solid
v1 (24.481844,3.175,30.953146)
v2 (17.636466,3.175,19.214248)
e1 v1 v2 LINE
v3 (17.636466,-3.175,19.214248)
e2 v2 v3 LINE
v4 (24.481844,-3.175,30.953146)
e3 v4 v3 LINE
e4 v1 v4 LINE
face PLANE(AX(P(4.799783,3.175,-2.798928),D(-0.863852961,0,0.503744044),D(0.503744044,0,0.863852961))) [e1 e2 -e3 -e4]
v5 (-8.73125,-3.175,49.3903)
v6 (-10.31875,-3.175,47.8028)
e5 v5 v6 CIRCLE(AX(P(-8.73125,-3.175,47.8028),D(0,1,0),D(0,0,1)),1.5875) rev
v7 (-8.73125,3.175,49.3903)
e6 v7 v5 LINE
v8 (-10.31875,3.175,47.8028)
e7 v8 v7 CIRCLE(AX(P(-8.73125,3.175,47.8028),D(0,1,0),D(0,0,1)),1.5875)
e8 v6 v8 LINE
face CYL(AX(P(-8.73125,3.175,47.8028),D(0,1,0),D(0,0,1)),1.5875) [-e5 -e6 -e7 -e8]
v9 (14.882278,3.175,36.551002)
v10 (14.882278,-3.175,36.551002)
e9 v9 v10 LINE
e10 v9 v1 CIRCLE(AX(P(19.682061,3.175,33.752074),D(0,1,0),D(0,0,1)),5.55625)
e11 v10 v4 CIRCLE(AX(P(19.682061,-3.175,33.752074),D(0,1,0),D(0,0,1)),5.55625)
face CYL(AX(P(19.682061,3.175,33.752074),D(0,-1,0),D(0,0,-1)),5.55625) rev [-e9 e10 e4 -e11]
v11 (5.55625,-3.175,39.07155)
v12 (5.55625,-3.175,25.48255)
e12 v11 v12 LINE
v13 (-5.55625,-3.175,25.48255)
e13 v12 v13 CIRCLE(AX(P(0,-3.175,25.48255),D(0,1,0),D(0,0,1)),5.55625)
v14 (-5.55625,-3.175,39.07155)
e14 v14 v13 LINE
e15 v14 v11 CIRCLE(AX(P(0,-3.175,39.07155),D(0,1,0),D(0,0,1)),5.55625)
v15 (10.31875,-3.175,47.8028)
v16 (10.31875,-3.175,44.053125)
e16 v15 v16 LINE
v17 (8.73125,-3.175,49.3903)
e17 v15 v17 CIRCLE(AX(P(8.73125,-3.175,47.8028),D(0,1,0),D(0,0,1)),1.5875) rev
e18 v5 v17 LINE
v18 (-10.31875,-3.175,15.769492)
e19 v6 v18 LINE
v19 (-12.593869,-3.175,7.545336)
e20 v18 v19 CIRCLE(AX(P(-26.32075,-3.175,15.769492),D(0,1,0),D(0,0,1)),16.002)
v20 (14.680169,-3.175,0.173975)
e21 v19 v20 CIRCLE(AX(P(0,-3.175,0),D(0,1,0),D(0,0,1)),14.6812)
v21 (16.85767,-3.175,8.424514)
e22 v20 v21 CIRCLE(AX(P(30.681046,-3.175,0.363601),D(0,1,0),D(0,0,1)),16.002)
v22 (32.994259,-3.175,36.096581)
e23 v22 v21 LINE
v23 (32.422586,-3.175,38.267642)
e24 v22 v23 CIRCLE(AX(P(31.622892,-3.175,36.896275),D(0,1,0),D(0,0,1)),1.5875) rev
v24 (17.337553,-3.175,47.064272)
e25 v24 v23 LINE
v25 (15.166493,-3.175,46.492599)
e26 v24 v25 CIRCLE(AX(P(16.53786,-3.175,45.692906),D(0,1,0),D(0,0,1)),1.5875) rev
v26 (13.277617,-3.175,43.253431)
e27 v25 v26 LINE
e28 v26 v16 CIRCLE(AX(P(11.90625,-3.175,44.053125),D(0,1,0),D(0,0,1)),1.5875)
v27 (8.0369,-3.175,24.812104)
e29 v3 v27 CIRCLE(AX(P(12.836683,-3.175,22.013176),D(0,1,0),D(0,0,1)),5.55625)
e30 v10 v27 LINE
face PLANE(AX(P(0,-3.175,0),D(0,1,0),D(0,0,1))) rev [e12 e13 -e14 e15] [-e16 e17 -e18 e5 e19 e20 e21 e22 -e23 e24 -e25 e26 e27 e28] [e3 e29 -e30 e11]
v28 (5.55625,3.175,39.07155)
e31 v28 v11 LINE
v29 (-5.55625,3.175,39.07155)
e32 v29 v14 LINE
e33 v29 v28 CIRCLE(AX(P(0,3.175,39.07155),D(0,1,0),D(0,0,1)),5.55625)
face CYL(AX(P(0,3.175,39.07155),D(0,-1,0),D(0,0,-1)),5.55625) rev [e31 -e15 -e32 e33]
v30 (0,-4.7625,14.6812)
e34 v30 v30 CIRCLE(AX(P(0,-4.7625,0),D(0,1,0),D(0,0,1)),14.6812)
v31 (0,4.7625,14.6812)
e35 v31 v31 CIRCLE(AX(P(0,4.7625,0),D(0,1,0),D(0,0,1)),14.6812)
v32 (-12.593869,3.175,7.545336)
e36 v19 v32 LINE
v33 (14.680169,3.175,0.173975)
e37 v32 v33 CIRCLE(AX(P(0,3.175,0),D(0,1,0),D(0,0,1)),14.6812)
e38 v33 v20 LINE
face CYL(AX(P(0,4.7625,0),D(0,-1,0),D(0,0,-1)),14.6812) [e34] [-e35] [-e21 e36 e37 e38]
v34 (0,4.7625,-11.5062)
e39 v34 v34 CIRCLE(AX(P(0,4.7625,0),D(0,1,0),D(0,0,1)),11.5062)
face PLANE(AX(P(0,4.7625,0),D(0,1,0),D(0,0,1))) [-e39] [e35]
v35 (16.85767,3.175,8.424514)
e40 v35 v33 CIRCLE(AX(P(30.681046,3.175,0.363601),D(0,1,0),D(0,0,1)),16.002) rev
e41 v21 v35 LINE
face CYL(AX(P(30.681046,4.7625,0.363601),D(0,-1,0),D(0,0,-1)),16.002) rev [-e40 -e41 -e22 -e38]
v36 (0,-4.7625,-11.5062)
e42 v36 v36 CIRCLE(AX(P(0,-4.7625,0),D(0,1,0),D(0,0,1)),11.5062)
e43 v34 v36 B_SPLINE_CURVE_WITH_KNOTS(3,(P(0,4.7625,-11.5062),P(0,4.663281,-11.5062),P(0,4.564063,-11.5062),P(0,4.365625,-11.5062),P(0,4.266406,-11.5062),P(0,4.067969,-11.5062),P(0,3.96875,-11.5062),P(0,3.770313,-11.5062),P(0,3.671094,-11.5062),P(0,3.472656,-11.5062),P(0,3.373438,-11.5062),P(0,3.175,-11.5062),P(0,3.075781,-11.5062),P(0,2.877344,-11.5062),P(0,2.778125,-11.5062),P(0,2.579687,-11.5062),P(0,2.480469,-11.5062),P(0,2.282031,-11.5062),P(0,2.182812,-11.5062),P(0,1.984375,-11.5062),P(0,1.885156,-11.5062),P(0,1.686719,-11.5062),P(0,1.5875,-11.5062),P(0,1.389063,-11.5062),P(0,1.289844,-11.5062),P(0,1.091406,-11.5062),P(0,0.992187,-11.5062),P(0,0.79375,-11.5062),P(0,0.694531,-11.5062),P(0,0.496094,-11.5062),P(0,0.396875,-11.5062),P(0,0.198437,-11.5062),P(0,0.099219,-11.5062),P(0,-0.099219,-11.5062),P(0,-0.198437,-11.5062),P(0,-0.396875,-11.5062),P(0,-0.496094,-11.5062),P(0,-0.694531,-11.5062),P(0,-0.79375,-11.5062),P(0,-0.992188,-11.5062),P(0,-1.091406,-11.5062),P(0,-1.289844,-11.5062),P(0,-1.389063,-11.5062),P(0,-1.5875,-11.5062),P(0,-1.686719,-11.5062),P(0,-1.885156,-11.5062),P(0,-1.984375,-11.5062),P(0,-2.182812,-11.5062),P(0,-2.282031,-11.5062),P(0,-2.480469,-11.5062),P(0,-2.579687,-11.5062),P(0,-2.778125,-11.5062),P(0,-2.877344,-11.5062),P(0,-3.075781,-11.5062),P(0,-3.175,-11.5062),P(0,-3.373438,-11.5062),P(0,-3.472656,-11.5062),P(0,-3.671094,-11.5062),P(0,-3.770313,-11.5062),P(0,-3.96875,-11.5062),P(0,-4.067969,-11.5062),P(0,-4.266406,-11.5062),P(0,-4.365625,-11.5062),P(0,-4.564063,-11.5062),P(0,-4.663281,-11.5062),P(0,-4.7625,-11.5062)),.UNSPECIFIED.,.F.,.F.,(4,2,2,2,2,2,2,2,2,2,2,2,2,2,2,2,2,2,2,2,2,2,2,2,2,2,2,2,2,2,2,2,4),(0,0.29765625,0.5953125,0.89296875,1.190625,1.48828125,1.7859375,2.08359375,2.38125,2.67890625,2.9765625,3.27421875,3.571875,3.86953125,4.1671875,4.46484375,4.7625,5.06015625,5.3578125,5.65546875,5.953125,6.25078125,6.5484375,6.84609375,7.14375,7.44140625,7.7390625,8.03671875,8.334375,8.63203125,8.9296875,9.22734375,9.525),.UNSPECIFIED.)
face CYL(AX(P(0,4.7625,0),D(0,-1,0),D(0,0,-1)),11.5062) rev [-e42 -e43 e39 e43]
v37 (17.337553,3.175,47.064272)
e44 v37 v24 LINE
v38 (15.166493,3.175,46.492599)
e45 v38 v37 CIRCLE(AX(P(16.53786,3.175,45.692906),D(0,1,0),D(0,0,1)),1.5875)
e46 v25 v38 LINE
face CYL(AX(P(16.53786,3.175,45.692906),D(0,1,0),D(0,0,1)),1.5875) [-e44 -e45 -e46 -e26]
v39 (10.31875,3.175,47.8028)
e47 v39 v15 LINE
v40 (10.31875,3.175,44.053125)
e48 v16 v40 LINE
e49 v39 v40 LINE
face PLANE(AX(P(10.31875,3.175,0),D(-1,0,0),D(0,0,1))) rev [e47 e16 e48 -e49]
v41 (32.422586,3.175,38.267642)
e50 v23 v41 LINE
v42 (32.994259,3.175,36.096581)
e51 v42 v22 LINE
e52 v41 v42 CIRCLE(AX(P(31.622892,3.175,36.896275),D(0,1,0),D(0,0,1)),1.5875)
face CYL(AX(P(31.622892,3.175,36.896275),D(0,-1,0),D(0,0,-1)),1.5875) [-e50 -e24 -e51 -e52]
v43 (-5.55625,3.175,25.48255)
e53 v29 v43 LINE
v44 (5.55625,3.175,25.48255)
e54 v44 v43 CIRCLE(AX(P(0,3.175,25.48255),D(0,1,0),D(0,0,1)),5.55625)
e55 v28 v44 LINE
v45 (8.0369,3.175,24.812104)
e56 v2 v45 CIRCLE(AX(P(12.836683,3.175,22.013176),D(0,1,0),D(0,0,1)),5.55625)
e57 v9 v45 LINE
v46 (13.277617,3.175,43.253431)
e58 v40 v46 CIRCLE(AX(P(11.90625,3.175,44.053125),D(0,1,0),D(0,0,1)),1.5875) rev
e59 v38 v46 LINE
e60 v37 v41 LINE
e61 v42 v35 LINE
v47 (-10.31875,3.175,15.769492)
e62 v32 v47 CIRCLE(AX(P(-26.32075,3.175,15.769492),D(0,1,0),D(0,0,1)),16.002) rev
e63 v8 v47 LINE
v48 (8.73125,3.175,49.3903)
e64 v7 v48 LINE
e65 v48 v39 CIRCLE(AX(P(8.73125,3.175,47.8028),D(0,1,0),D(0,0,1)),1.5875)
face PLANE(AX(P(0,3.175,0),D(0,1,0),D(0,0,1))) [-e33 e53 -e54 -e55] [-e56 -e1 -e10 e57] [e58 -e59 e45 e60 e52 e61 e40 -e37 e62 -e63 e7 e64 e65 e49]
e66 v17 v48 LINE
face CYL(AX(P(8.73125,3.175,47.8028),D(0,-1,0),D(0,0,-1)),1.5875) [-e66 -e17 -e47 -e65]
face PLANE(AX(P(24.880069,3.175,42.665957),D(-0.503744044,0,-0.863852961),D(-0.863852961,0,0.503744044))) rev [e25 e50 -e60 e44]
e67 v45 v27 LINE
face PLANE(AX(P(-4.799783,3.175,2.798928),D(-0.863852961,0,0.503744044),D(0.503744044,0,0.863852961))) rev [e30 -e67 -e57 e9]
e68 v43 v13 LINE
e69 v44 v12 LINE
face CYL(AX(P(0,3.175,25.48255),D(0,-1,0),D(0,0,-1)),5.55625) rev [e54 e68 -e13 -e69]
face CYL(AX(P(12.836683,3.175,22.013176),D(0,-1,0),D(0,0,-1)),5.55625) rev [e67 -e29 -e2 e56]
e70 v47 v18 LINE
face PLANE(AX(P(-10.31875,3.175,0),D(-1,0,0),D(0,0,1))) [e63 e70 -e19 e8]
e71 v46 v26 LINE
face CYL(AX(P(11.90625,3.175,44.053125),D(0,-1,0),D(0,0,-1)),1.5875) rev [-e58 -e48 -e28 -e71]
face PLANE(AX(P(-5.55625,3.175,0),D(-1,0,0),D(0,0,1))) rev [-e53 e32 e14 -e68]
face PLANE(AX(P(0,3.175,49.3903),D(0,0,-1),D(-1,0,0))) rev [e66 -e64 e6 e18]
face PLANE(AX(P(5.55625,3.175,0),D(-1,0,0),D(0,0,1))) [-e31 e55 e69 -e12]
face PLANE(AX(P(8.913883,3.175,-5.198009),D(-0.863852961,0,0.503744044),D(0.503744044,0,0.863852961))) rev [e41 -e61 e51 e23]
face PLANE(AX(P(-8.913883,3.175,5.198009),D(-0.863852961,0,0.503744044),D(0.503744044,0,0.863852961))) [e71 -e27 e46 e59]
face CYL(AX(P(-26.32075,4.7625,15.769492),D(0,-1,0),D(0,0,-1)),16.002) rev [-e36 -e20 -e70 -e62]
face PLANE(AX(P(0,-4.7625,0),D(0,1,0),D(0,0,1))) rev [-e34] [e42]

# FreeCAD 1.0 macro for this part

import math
import FreeCAD as App
import Part
import Sketcher
from FreeCAD import Vector
Q = App.Units.Quantity


def edges_at(feature, points):
    """Names of the edges that pass closest to the given points."""
    edges = feature.Shape.Edges
    near = lambda p: min(range(len(edges)), key=lambda i: edges[i].distToShape(Part.Vertex(*p))[0])
    return sorted({f"Edge{near(p) + 1}" for p in points})

doc = App.newDocument("Part")
body = doc.addObject("PartDesign::Body", "Body")

sketch1 = body.newObject("Sketcher::SketchObject", "Sketch")
sketch1.AttachmentSupport = (doc.getObject("XZ_Plane"), [""])
sketch1.MapMode = "FlatFace"
sketch1.addGeometry([
    Part.Circle(Vector(0, 0, 0), Vector(0, 0, 1), 14.6812),
    Part.Circle(Vector(0, 0, 0), Vector(0, 0, 1), 11.5062),
], False)
sketch1.addConstraint([
    Sketcher.Constraint("Coincident", 0, 3, -1, 1),
    Sketcher.Constraint("Coincident", 1, 3, -1, 1),
    Sketcher.Constraint("Diameter", 0, Q("1.156 in")),
    Sketcher.Constraint("Diameter", 1, Q("0.906 in")),
])
pad1 = body.newObject("PartDesign::Pad", "Pad")
pad1.Profile = sketch1
pad1.Length = Q("0.375 in")
pad1.Midplane = True

sketch2 = body.newObject("Sketcher::SketchObject", "Sketch001")
sketch2.AttachmentSupport = (doc.getObject("XZ_Plane"), [""])
sketch2.MapMode = "FlatFace"
sketch2.addGeometry([
    Part.LineSegment(Vector(-10.31875, 10.443229, 0), Vector(-10.31875, 49.3903, 0)),
    Part.LineSegment(Vector(-10.31875, 49.3903, 0), Vector(10.31875, 49.3903, 0)),
    Part.LineSegment(Vector(10.31875, 49.3903, 0), Vector(10.31875, 38.179375, 0)),
    Part.LineSegment(Vector(10.31875, 38.179375, 0), Vector(15.966187, 47.863966, 0)),
    Part.LineSegment(Vector(15.966187, 47.863966, 0), Vector(33.793952, 37.467948, 0)),
    Part.LineSegment(Vector(33.793952, 37.467948, 0), Vector(14.174597, 3.823405, 0)),
    Part.ArcOfCircle(Part.Circle(Vector(0, 0, 0), Vector(0, 0, 1), 14.6812), math.radians(15.0955), math.radians(134.656486)),
    Part.LineSegment(Vector(5.55625, 25.48255, 0), Vector(5.55625, 39.07155, 0)),
    Part.ArcOfCircle(Part.Circle(Vector(0, 39.07155, 0), Vector(0, 0, 1), 5.55625), math.radians(0), math.radians(180)),
    Part.LineSegment(Vector(-5.55625, 39.07155, 0), Vector(-5.55625, 25.48255, 0)),
    Part.ArcOfCircle(Part.Circle(Vector(0, 25.48255, 0), Vector(0, 0, 1), 5.55625), math.radians(180), math.radians(360)),
    Part.LineSegment(Vector(17.636466, 19.214248, 0), Vector(24.481844, 30.953146, 0)),
    Part.ArcOfCircle(Part.Circle(Vector(19.682061, 33.752074, 0), Vector(0, 0, 1), 5.55625), math.radians(-30.248015), math.radians(149.751985)),
    Part.LineSegment(Vector(14.882278, 36.551002, 0), Vector(8.0369, 24.812104, 0)),
    Part.ArcOfCircle(Part.Circle(Vector(12.836683, 22.013176, 0), Vector(0, 0, 1), 5.55625), math.radians(149.751985), math.radians(329.751985)),
], False)
sketch2.addConstraint([
    Sketcher.Constraint("Coincident", 0, 2, 1, 1),
    Sketcher.Constraint("Coincident", 1, 2, 2, 1),
    Sketcher.Constraint("Coincident", 2, 2, 3, 1),
    Sketcher.Constraint("Coincident", 3, 2, 4, 1),
    Sketcher.Constraint("Coincident", 4, 2, 5, 1),
    Sketcher.Constraint("Coincident", 5, 2, 6, 1),
    Sketcher.Constraint("Coincident", 6, 2, 0, 1),
    Sketcher.Constraint("Tangent", 7, 2, 8, 1),
    Sketcher.Constraint("Tangent", 8, 2, 9, 1),
    Sketcher.Constraint("Tangent", 9, 2, 10, 1),
    Sketcher.Constraint("Tangent", 10, 2, 7, 1),
    Sketcher.Constraint("Tangent", 11, 2, 12, 1),
    Sketcher.Constraint("Tangent", 12, 2, 13, 1),
    Sketcher.Constraint("Tangent", 13, 2, 14, 1),
    Sketcher.Constraint("Tangent", 14, 2, 11, 1),
    Sketcher.Constraint("Vertical", 0),
    Sketcher.Constraint("Horizontal", 1),
    Sketcher.Constraint("Vertical", 2),
    Sketcher.Constraint("Vertical", 7),
    Sketcher.Constraint("Vertical", 9),
    Sketcher.Constraint("Coincident", 6, 3, -1, 1),
    Sketcher.Constraint("Equal", 10, 12),
    Sketcher.Constraint("Equal", 12, 14),
    Sketcher.Constraint("PointOnObject", 8, 3, -2),
    Sketcher.Constraint("Perpendicular", 3, 4),
    Sketcher.Constraint("Perpendicular", 4, 5),
    Sketcher.Constraint("Parallel", 5, 11),
    Sketcher.Constraint("Radius", 6, Q("0.578 in")),
    Sketcher.Constraint("Radius", 8, Q("0.21875 in")),
    Sketcher.Constraint("DistanceX", 1, 1, 1, 2, Q("0.8125 in")),
    Sketcher.Constraint("DistanceY", 7, 1, 7, 2, Q("0.535 in")),
    Sketcher.Constraint("Distance", 4, Q("0.8125 in")),
    Sketcher.Constraint("Distance", 11, Q("0.535 in")),
    Sketcher.Constraint("DistanceX", 0, 2, -1, 1, Q("0.40625 in")),
    Sketcher.Constraint("DistanceY", 8, 3, 0, 2, Q("0.40625 in")),
    Sketcher.Constraint("DistanceY", -1, 1, 0, 2, Q("1.9445 in")),
    Sketcher.Constraint("DistanceX", -1, 1, 13, 2, 8.0369),
    Sketcher.Constraint("DistanceY", 12, 3, 2, 2, 4.427301),
    Sketcher.Constraint("DistanceY", 14, 3, 2, 2, 16.166199),
    Sketcher.Constraint("DistanceY", 11, 2, 4, 2, 6.514802),
    Sketcher.Constraint("DistanceY", 14, 2, 10, 2, 6.268302),
])
pad2 = body.newObject("PartDesign::Pad", "Pad001")
pad2.Profile = sketch2
pad2.Length = Q("0.25 in")
pad2.Midplane = True
doc.recompute()

fillet = body.newObject("PartDesign::Fillet", "Fillet")
fillet.Base = (pad2, edges_at(pad2, [(14.175, 0, 3.823), (-10.319, 0, 10.443)]))
fillet.Radius = Q("0.63 in")
doc.recompute()

fillet2 = body.newObject("PartDesign::Fillet", "Fillet001")
fillet2.Base = (fillet, edges_at(fillet, [
    (-10.319, 0, 49.39),
    (10.319, 0, 49.39),
    (10.319, 0, 38.179),
    (15.966, 0, 47.864),
    (33.794, 0, 37.468),
]))
fillet2.Radius = Q("0.0625 in")

doc.recompute()
